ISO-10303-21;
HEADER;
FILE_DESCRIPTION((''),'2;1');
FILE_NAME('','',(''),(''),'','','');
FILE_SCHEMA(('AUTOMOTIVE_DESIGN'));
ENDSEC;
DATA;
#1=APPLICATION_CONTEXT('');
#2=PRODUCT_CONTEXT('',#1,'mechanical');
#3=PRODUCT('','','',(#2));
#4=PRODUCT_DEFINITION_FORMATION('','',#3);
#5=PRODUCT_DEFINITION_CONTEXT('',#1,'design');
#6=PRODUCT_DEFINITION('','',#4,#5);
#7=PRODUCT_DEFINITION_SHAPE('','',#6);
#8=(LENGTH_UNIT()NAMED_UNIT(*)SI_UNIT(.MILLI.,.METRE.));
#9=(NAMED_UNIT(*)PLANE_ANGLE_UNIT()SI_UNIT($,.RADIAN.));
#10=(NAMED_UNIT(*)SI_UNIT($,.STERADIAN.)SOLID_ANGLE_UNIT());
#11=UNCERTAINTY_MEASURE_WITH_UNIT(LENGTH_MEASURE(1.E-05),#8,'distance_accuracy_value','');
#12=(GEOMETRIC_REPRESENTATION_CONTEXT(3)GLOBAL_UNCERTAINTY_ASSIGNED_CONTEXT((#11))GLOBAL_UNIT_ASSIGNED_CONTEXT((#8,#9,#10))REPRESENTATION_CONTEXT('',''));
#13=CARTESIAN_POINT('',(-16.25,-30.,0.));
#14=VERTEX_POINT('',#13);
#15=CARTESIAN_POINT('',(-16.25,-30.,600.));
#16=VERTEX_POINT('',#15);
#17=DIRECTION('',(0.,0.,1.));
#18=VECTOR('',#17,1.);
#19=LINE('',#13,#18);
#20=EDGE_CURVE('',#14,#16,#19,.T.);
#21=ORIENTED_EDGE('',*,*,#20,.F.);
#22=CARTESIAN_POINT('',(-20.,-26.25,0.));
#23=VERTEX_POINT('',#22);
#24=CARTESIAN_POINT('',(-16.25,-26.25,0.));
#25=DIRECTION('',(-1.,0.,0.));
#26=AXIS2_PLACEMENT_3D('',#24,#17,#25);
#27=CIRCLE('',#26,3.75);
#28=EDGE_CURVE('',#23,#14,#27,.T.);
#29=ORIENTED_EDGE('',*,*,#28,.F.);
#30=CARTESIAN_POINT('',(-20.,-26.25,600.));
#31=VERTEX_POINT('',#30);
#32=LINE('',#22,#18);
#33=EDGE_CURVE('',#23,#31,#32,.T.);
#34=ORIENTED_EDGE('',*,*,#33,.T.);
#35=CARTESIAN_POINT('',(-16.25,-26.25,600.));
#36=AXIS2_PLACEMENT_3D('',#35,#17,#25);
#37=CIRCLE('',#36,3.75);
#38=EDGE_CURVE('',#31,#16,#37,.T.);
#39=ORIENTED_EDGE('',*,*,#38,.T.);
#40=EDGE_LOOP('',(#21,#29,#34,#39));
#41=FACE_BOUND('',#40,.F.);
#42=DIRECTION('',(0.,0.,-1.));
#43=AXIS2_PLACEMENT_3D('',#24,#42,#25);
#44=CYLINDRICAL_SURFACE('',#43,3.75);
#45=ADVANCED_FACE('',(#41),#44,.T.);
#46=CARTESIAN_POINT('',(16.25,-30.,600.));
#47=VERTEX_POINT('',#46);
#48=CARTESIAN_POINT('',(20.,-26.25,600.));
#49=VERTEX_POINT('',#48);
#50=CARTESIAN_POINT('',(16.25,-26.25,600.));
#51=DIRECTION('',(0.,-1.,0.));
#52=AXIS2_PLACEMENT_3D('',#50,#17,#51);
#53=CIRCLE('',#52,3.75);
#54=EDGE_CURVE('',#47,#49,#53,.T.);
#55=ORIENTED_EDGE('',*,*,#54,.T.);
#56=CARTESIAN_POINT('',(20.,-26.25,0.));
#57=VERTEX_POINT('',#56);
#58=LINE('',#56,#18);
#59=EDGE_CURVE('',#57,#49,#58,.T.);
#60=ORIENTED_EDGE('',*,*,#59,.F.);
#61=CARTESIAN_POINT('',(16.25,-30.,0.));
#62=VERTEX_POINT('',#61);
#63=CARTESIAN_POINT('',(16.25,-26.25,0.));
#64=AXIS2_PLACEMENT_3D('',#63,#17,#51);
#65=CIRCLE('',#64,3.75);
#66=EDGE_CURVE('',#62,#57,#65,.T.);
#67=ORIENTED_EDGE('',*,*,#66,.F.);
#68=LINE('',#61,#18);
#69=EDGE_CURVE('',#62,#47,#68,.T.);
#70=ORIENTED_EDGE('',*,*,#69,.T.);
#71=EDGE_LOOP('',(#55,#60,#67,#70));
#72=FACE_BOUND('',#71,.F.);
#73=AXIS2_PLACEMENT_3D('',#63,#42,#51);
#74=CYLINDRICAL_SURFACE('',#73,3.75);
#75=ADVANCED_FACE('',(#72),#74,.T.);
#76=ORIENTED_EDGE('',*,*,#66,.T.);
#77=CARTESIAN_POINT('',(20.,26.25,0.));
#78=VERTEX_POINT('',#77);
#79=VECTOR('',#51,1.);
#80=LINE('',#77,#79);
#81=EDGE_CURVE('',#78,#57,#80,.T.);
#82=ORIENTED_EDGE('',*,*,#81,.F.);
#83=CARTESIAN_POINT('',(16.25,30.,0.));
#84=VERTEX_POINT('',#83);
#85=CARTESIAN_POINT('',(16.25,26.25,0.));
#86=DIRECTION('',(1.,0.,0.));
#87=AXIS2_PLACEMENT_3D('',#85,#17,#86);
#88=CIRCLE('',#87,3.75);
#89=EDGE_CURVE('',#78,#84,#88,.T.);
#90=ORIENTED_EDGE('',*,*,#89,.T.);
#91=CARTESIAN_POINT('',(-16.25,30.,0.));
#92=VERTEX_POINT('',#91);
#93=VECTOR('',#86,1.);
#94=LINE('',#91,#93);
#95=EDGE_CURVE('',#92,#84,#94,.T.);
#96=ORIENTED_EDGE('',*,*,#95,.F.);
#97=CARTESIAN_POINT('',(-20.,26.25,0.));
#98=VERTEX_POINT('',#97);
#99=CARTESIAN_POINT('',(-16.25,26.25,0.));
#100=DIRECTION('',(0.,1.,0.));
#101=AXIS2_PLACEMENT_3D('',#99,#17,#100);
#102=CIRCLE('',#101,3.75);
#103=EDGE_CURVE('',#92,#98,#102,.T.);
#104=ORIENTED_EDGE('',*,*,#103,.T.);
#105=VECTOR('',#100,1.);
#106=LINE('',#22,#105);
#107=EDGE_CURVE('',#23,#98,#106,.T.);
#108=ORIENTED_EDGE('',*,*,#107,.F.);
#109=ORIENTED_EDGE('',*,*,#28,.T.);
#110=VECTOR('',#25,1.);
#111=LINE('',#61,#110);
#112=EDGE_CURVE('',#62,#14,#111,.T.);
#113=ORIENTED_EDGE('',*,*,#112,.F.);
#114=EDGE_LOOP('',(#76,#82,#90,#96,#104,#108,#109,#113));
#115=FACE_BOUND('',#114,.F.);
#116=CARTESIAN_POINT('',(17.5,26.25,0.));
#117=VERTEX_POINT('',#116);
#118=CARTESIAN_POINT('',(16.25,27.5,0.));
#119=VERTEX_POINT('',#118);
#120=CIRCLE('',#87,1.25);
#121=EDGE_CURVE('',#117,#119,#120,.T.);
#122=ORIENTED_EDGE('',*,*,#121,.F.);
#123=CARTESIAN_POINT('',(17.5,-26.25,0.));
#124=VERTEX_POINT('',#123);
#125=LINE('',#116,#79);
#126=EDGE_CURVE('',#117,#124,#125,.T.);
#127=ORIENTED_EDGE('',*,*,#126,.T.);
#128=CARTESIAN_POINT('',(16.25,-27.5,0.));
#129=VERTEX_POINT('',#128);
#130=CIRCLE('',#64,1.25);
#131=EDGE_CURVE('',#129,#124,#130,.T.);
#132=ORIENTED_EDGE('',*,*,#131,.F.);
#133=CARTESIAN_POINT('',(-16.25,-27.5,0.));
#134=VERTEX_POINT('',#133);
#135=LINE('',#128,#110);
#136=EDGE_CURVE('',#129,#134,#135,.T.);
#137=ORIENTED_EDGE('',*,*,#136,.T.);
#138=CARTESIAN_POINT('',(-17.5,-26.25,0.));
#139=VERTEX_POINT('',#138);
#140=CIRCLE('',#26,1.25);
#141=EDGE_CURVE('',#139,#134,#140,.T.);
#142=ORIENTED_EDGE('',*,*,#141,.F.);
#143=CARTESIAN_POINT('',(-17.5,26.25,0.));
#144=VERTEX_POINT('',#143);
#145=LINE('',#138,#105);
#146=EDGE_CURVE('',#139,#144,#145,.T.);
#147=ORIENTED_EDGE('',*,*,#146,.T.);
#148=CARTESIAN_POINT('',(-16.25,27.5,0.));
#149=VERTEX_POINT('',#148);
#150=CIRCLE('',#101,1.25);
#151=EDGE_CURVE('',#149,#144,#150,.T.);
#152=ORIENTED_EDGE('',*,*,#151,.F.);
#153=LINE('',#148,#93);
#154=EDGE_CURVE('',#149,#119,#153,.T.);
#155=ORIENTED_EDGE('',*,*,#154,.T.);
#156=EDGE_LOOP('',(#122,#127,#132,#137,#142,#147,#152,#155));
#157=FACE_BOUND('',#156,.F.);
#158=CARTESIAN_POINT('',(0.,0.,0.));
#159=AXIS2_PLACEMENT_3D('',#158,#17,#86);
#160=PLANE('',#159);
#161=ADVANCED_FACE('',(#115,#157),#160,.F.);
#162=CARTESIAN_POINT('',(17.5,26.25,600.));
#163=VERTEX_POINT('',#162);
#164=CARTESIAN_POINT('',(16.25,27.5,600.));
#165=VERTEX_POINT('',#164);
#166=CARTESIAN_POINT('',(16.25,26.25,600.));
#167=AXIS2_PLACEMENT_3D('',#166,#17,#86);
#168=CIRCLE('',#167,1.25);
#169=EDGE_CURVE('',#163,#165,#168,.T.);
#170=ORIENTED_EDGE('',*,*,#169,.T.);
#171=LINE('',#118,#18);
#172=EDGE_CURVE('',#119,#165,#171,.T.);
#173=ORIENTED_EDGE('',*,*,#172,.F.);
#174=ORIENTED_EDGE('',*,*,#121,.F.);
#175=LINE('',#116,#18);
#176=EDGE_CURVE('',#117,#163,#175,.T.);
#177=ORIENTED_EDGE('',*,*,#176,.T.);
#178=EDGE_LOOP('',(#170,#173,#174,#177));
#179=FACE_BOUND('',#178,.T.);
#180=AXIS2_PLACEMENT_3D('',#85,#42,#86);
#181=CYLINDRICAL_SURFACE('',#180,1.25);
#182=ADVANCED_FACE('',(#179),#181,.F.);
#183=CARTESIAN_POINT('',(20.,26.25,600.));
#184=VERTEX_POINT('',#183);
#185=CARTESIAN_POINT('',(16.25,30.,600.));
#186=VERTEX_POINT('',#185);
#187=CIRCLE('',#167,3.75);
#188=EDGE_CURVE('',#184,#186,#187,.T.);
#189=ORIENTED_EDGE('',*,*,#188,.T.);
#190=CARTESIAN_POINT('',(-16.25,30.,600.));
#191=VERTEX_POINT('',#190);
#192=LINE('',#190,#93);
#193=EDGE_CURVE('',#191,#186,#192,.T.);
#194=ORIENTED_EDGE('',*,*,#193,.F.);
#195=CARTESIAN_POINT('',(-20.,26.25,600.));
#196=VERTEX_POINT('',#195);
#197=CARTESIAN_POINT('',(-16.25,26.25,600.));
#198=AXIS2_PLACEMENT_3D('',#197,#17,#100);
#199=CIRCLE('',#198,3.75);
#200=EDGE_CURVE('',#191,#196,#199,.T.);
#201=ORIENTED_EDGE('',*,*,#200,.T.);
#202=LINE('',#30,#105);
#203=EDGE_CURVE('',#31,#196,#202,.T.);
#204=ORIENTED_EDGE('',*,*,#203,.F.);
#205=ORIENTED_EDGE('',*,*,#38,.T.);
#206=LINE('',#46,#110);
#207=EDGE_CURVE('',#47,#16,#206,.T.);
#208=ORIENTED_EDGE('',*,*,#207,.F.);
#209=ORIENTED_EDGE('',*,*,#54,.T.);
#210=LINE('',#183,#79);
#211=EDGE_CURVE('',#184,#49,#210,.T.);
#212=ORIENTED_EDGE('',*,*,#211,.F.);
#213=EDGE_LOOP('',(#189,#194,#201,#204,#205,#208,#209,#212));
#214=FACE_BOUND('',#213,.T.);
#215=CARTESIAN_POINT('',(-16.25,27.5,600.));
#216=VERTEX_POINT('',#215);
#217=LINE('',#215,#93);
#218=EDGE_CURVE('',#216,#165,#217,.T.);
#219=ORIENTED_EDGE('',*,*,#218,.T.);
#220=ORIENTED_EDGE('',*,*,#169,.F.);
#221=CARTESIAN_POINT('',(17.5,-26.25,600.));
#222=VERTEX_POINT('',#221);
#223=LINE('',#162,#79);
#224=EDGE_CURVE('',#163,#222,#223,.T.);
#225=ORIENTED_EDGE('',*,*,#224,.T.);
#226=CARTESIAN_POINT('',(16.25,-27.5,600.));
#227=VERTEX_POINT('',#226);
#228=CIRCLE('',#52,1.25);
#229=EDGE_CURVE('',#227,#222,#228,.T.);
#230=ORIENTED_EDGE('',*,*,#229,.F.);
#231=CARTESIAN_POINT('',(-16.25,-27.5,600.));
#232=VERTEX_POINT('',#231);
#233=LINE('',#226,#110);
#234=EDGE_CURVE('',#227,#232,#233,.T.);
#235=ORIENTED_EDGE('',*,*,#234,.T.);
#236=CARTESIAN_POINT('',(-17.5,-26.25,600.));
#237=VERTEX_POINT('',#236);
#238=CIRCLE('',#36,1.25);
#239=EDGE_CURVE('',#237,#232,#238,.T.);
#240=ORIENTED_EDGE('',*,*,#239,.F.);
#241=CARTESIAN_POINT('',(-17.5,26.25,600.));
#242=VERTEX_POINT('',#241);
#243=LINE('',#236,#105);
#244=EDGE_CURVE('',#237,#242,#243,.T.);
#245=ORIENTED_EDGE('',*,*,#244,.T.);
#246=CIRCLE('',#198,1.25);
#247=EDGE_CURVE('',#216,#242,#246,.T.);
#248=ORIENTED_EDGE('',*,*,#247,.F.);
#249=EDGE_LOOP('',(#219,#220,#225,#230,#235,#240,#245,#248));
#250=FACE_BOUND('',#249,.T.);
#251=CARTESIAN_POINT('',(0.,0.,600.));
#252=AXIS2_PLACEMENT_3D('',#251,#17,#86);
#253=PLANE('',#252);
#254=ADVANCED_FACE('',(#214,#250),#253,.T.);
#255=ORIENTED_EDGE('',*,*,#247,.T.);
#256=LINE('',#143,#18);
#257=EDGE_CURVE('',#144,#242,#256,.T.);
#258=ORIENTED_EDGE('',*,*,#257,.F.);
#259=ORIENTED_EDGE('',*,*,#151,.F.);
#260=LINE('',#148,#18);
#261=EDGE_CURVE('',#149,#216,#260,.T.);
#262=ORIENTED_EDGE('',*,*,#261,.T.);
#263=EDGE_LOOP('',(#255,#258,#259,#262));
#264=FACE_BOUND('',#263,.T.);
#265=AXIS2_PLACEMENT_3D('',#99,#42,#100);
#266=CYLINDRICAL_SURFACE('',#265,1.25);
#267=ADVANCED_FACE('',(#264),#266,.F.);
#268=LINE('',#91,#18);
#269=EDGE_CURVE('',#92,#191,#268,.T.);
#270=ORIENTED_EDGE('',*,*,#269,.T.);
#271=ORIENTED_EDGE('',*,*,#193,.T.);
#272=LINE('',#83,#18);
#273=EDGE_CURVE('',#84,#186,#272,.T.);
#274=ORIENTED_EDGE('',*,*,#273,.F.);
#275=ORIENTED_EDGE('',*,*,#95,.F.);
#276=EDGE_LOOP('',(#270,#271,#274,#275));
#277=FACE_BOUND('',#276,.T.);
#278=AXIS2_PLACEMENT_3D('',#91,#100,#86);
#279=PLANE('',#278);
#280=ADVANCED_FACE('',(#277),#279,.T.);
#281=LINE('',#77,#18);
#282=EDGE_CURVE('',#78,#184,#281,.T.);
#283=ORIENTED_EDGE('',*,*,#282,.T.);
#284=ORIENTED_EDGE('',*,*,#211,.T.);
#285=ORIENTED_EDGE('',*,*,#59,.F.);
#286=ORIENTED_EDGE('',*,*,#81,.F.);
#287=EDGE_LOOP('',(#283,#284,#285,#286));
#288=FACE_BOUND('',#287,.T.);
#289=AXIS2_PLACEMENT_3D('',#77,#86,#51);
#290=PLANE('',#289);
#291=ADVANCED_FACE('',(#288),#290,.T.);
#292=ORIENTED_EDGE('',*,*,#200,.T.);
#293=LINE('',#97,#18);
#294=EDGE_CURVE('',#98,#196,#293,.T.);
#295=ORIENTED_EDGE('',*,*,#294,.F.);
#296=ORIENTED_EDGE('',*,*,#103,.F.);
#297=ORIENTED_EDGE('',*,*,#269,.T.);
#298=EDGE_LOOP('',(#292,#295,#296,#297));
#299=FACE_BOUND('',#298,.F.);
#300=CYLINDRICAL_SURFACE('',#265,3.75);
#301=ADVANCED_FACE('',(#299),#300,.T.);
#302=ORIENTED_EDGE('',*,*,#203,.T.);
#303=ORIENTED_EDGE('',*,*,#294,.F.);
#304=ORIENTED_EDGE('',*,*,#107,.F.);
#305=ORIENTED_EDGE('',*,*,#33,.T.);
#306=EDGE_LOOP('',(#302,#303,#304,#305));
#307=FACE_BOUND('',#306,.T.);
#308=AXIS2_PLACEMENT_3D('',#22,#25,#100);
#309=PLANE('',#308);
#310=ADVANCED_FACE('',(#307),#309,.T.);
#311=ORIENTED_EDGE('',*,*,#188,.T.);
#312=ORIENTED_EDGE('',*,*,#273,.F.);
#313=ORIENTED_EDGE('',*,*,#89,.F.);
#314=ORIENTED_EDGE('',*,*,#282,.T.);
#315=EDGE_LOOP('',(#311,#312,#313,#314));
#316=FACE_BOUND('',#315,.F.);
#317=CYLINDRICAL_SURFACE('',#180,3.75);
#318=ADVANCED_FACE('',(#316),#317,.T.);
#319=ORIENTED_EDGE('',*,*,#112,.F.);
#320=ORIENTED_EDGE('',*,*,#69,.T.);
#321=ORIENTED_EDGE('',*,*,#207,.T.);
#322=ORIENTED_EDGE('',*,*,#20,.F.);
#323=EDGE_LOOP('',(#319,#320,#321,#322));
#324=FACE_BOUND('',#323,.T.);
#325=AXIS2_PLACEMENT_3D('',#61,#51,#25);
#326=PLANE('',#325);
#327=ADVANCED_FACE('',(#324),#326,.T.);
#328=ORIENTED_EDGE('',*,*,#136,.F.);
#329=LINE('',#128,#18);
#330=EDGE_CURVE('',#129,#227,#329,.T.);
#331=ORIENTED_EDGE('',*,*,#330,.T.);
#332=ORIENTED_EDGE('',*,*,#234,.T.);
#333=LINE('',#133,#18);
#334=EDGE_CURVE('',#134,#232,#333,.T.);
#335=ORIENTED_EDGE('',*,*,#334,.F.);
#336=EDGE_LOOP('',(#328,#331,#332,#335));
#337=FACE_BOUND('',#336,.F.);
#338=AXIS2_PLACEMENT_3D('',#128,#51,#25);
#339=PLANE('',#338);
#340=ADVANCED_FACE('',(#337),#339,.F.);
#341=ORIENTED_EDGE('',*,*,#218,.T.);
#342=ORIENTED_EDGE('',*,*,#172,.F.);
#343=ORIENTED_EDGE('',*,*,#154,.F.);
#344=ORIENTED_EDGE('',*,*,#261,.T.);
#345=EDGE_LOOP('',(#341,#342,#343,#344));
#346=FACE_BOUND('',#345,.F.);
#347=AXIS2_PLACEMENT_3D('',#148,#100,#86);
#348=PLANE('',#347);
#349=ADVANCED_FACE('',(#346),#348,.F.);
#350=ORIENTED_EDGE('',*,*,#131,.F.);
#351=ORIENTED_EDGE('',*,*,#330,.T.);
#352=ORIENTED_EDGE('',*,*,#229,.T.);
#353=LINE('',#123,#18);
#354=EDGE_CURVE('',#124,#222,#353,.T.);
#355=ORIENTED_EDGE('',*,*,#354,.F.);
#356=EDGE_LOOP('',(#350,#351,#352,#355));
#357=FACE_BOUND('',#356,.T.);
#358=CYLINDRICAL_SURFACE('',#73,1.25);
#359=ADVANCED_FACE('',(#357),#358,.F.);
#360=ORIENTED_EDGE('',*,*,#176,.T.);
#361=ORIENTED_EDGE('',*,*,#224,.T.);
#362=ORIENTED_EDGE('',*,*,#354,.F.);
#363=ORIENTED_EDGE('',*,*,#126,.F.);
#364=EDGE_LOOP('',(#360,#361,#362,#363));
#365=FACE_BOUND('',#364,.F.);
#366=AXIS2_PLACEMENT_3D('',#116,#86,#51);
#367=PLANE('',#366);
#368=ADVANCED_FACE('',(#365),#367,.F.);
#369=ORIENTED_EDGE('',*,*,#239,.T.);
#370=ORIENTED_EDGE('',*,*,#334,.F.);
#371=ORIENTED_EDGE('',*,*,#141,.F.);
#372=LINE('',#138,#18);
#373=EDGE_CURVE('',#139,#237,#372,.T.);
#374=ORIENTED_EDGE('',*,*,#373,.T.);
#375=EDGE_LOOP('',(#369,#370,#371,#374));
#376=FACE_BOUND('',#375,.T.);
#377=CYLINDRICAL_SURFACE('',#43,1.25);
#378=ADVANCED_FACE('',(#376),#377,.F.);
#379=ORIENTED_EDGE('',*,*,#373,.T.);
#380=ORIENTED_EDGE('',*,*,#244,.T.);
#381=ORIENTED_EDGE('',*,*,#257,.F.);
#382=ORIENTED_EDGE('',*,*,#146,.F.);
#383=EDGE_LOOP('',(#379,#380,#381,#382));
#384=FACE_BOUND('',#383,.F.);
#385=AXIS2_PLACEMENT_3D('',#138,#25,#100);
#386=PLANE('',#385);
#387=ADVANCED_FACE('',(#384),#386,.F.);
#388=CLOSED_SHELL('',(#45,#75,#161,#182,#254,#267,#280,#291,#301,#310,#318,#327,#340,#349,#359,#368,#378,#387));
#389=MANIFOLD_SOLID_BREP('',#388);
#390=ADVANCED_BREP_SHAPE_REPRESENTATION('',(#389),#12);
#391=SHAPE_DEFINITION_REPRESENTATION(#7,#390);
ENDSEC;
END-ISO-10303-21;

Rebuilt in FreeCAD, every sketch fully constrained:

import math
import FreeCAD as App
import Part
import Sketcher
Q = App.Units.Quantity

doc = App.newDocument("Part")
params = doc.addObject("Spreadsheet::Sheet", "Params")
for row, (alias, value) in enumerate([
    ("sketch1_radius", "3.75 mm"),
    ("sketch1_radius2", "1.25 mm"),
    ("pad1_length", "600 mm"),
], start=1):
    params.set(f"A{row}", alias)
    params.set(f"B{row}", "=" + value)
    params.setAlias(f"B{row}", alias)

body = doc.addObject("PartDesign::Body", "Body")

# Sketch on XY plane
sketch1 = doc.addObject("Sketcher::SketchObject", "Sketch")
body.addObject(sketch1)
sketch1.AttachmentSupport = (doc.XY_Plane, [""])
sketch1.MapMode = "FlatFace"
sketch1.addGeometry([
    Part.LineSegment(App.Vector(-20, 26.25, 0), App.Vector(-20, -26.25, 0)),  # 0
    Part.ArcOfCircle(Part.Circle(App.Vector(-16.25, -26.25, 0), App.Vector(0, 0, 1), 3.75), math.radians(180), math.radians(270)),  # 1
    Part.LineSegment(App.Vector(-16.25, -30, 0), App.Vector(16.25, -30, 0)),  # 2
    Part.ArcOfCircle(Part.Circle(App.Vector(16.25, -26.25, 0), App.Vector(0, 0, 1), 3.75), math.radians(-90), math.radians(0)),  # 3
    Part.LineSegment(App.Vector(20, -26.25, 0), App.Vector(20, 26.25, 0)),  # 4
    Part.ArcOfCircle(Part.Circle(App.Vector(16.25, 26.25, 0), App.Vector(0, 0, 1), 3.75), math.radians(0), math.radians(90)),  # 5
    Part.LineSegment(App.Vector(16.25, 30, 0), App.Vector(-16.25, 30, 0)),  # 6
    Part.ArcOfCircle(Part.Circle(App.Vector(-16.25, 26.25, 0), App.Vector(0, 0, 1), 3.75), math.radians(90), math.radians(180)),  # 7
    Part.ArcOfCircle(Part.Circle(App.Vector(-16.25, 26.25, 0), App.Vector(0, 0, 1), 1.25), math.radians(90), math.radians(180)),  # 8
    Part.LineSegment(App.Vector(-16.25, 27.5, 0), App.Vector(16.25, 27.5, 0)),  # 9
    Part.ArcOfCircle(Part.Circle(App.Vector(16.25, 26.25, 0), App.Vector(0, 0, 1), 1.25), math.radians(0), math.radians(90)),  # 10
    Part.LineSegment(App.Vector(17.5, 26.25, 0), App.Vector(17.5, -26.25, 0)),  # 11
    Part.ArcOfCircle(Part.Circle(App.Vector(16.25, -26.25, 0), App.Vector(0, 0, 1), 1.25), math.radians(-90), math.radians(0)),  # 12
    Part.LineSegment(App.Vector(16.25, -27.5, 0), App.Vector(-16.25, -27.5, 0)),  # 13
    Part.ArcOfCircle(Part.Circle(App.Vector(-16.25, -26.25, 0), App.Vector(0, 0, 1), 1.25), math.radians(180), math.radians(270)),  # 14
    Part.LineSegment(App.Vector(-17.5, -26.25, 0), App.Vector(-17.5, 26.25, 0)),  # 15
], False)
sketch1.addConstraint([
    Sketcher.Constraint("Tangent", 0, 2, 1, 1),
    Sketcher.Constraint("Tangent", 1, 2, 2, 1),
    Sketcher.Constraint("Tangent", 2, 2, 3, 1),
    Sketcher.Constraint("Tangent", 3, 2, 4, 1),
    Sketcher.Constraint("Tangent", 4, 2, 5, 1),
    Sketcher.Constraint("Tangent", 5, 2, 6, 1),
    Sketcher.Constraint("Tangent", 6, 2, 7, 1),
    Sketcher.Constraint("Tangent", 7, 2, 0, 1),
    Sketcher.Constraint("Tangent", 8, 1, 9, 1),
    Sketcher.Constraint("Tangent", 9, 2, 10, 2),
    Sketcher.Constraint("Tangent", 10, 1, 11, 1),
    Sketcher.Constraint("Tangent", 11, 2, 12, 2),
    Sketcher.Constraint("Tangent", 12, 1, 13, 1),
    Sketcher.Constraint("Tangent", 13, 2, 14, 2),
    Sketcher.Constraint("Tangent", 14, 1, 15, 1),
    Sketcher.Constraint("Tangent", 15, 2, 8, 2),
    Sketcher.Constraint("Vertical", 0),
    Sketcher.Constraint("Horizontal", 2),
    Sketcher.Constraint("Vertical", 4),
    Sketcher.Constraint("Horizontal", 6),
    Sketcher.Constraint("Horizontal", 9),
    Sketcher.Constraint("Vertical", 11),
    Sketcher.Constraint("Horizontal", 13),
    Sketcher.Constraint("Vertical", 15),
    Sketcher.Constraint("Coincident", 8, 3, 7, 3),
    Sketcher.Constraint("Coincident", 10, 3, 5, 3),
    Sketcher.Constraint("Coincident", 12, 3, 3, 3),
    Sketcher.Constraint("Equal", 1, 3),
    Sketcher.Constraint("Equal", 3, 5),
    Sketcher.Constraint("Equal", 5, 7),
    Sketcher.Constraint("Equal", 12, 14),
    Sketcher.Constraint("Symmetric", 1, 3, 5, 3, -1, 1),
    Sketcher.Constraint("Radius", 1, Q("3.75 mm")),
    Sketcher.Constraint("Radius", 8, Q("1.25 mm")),
    Sketcher.Constraint("DistanceX", 0, 2, -1, 1, Q("20 mm")),
    Sketcher.Constraint("DistanceY", 1, 2, -1, 1, Q("30 mm")),
])
sketch1.setExpression("Constraints[32]", "Params.sketch1_radius")
sketch1.setExpression("Constraints[33]", "Params.sketch1_radius2")
pad1 = doc.addObject("PartDesign::Pad", "Pad")
body.addObject(pad1)
pad1.Profile = sketch1
pad1.setExpression("Length", "Params.pad1_length")

doc.recompute()
